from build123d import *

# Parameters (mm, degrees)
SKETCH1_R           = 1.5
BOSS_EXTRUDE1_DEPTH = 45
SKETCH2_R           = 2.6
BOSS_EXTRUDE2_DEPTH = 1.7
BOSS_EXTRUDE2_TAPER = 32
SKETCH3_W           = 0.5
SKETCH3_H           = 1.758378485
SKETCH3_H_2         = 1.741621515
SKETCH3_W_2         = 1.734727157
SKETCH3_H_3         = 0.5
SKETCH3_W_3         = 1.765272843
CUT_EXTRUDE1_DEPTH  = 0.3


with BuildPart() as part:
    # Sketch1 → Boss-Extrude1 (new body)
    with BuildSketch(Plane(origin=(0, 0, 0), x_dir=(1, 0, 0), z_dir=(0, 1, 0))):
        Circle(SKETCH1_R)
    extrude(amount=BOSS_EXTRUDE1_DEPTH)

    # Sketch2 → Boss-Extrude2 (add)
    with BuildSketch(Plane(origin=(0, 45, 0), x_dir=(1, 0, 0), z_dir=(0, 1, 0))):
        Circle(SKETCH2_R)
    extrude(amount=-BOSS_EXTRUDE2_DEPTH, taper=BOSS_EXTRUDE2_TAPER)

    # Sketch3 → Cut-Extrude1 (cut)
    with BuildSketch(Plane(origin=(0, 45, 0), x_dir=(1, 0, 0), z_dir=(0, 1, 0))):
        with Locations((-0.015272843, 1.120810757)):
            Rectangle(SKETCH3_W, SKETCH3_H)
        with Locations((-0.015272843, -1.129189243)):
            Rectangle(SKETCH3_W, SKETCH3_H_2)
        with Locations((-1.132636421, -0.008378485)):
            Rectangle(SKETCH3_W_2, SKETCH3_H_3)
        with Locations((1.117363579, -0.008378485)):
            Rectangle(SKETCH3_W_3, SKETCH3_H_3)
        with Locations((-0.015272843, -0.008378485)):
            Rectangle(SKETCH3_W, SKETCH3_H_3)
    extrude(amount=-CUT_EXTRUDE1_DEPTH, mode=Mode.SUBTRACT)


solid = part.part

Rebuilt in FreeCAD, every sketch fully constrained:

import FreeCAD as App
import Part
import Sketcher
Q = App.Units.Quantity

doc = App.newDocument("Part")
params = doc.addObject("Spreadsheet::Sheet", "Params")
for row, (alias, value) in enumerate([
    ("sketch1_diameter", "3 mm"),
    ("pad1_length", "45 mm"),
    ("sketch2_diameter", "5.2 mm"),
    ("pad2_length", "1.7 mm"),
    ("pad2_taper", "-32 deg"),
    ("sketch3_width", "0.5 mm"),
    ("pocket1_length", "0.3 mm"),
], start=1):
    params.set(f"A{row}", alias)
    params.set(f"B{row}", "=" + value)
    params.setAlias(f"B{row}", alias)

body = doc.addObject("PartDesign::Body", "Body")

# Sketch on XZ plane
sketch1 = body.newObject("Sketcher::SketchObject", "Sketch")
sketch1.AttachmentSupport = (doc.getObject("XZ_Plane"), [""])
sketch1.MapMode = "FlatFace"
sketch1.addGeometry(Part.Circle(App.Vector(0, 0, 0), App.Vector(0, 0, 1), 1.5), False)
sketch1.addConstraint(Sketcher.Constraint("Coincident", 0, 3, -1, 1))
sketch1.addConstraint(Sketcher.Constraint("Diameter", 0, Q("3 mm")))
sketch1.setExpression("Constraints[1]", "Params.sketch1_diameter")
pad1 = body.newObject("PartDesign::Pad", "Pad")
pad1.Profile = sketch1
pad1.setExpression("Length", "Params.pad1_length")
pad1.Reversed = True

# Sketch on XZ plane
sketch2 = body.newObject("Sketcher::SketchObject", "Sketch001")
sketch2.AttachmentSupport = (doc.getObject("XZ_Plane"), [""])
sketch2.MapMode = "FlatFace"
sketch2.AttachmentOffset = App.Placement(App.Vector(0, 0, -45), App.Rotation())
sketch2.addGeometry(Part.Circle(App.Vector(0, 0, 0), App.Vector(0, 0, 1), 2.6), False)
sketch2.addConstraint(Sketcher.Constraint("Coincident", 0, 3, -1, 1))
sketch2.addConstraint(Sketcher.Constraint("Diameter", 0, Q("5.2 mm")))
sketch2.setExpression("Constraints[1]", "Params.sketch2_diameter")
pad2 = body.newObject("PartDesign::Pad", "Pad001")
pad2.Profile = sketch2
pad2.setExpression("Length", "Params.pad2_length")
pad2.setExpression("TaperAngle", "Params.pad2_taper")

# Sketch on XZ plane
sketch3 = body.newObject("Sketcher::SketchObject", "Sketch002")
sketch3.AttachmentSupport = (doc.getObject("XZ_Plane"), [""])
sketch3.MapMode = "FlatFace"
sketch3.AttachmentOffset = App.Placement(App.Vector(0, 0, -45), App.Rotation())
sketch3.addGeometry(Part.LineSegment(App.Vector(-0.3, -2, 0), App.Vector(-0.3, -0.2, 0)), False)
sketch3.addGeometry(Part.LineSegment(App.Vector(-0.3, -0.2, 0), App.Vector(-2, -0.2, 0)), False)
sketch3.addGeometry(Part.LineSegment(App.Vector(-2, -0.2, 0), App.Vector(-2, 0.3, 0)), False)
sketch3.addGeometry(Part.LineSegment(App.Vector(-2, 0.3, 0), App.Vector(-0.3, 0.3, 0)), False)
sketch3.addGeometry(Part.LineSegment(App.Vector(-0.3, 0.3, 0), App.Vector(-0.3, 2, 0)), False)
sketch3.addGeometry(Part.LineSegment(App.Vector(-0.3, 2, 0), App.Vector(0.2, 2, 0)), False)
sketch3.addGeometry(Part.LineSegment(App.Vector(0.2, 2, 0), App.Vector(0.2, 0.3, 0)), False)
sketch3.addGeometry(Part.LineSegment(App.Vector(0.2, 0.3, 0), App.Vector(2, 0.3, 0)), False)
sketch3.addGeometry(Part.LineSegment(App.Vector(2, 0.3, 0), App.Vector(2, -0.2, 0)), False)
sketch3.addGeometry(Part.LineSegment(App.Vector(2, -0.2, 0), App.Vector(0.2, -0.2, 0)), False)
sketch3.addGeometry(Part.LineSegment(App.Vector(0.2, -0.2, 0), App.Vector(0.2, -2, 0)), False)
sketch3.addGeometry(Part.LineSegment(App.Vector(0.2, -2, 0), App.Vector(-0.3, -2, 0)), False)
sketch3.addConstraint(Sketcher.Constraint("Coincident", 0, 2, 1, 1))
sketch3.addConstraint(Sketcher.Constraint("Coincident", 1, 2, 2, 1))
sketch3.addConstraint(Sketcher.Constraint("Coincident", 2, 2, 3, 1))
sketch3.addConstraint(Sketcher.Constraint("Coincident", 3, 2, 4, 1))
sketch3.addConstraint(Sketcher.Constraint("Coincident", 4, 2, 5, 1))
sketch3.addConstraint(Sketcher.Constraint("Coincident", 5, 2, 6, 1))
sketch3.addConstraint(Sketcher.Constraint("Coincident", 6, 2, 7, 1))
sketch3.addConstraint(Sketcher.Constraint("Coincident", 7, 2, 8, 1))
sketch3.addConstraint(Sketcher.Constraint("Coincident", 8, 2, 9, 1))
sketch3.addConstraint(Sketcher.Constraint("Coincident", 9, 2, 10, 1))
sketch3.addConstraint(Sketcher.Constraint("Coincident", 10, 2, 11, 1))
sketch3.addConstraint(Sketcher.Constraint("Coincident", 11, 2, 0, 1))
sketch3.addConstraint(Sketcher.Constraint("Vertical", 0))
sketch3.addConstraint(Sketcher.Constraint("Horizontal", 1))
sketch3.addConstraint(Sketcher.Constraint("Vertical", 2))
sketch3.addConstraint(Sketcher.Constraint("Horizontal", 3))
sketch3.addConstraint(Sketcher.Constraint("Vertical", 4))
sketch3.addConstraint(Sketcher.Constraint("Horizontal", 5))
sketch3.addConstraint(Sketcher.Constraint("Vertical", 6))
sketch3.addConstraint(Sketcher.Constraint("Horizontal", 7))
sketch3.addConstraint(Sketcher.Constraint("Vertical", 8))
sketch3.addConstraint(Sketcher.Constraint("Horizontal", 9))
sketch3.addConstraint(Sketcher.Constraint("Vertical", 10))
sketch3.addConstraint(Sketcher.Constraint("Horizontal", 11))
sketch3.addConstraint(Sketcher.Constraint("Symmetric", 2, 2, 7, 2, -2))
sketch3.addConstraint(Sketcher.Constraint("Symmetric", 5, 2, 10, 2, -1))
sketch3.addConstraint(Sketcher.Constraint("Horizontal", 1, 2, 8, 2))
sketch3.addConstraint(Sketcher.Constraint("Vertical", 0, 2, 3, 2))
sketch3.addConstraint(Sketcher.Constraint("Equal", 11, 2))
sketch3.addConstraint(Sketcher.Constraint("DistanceX", 5, 1, 5, 2, Q("0.5 mm")))
sketch3.addConstraint(Sketcher.Constraint("DistanceX", 1, 2, -1, 1, Q("2 mm")))
sketch3.addConstraint(Sketcher.Constraint("DistanceY", -1, 1, 4, 2, Q("2 mm")))
sketch3.addConstraint(Sketcher.Constraint("DistanceY", 0, 1, 0, 2, Q("1.758378 mm")))
sketch3.addConstraint(Sketcher.Constraint("DistanceX", 1, 2, 1, 1, Q("1.734727 mm")))
sketch3.setExpression("Constraints[29]", "Params.sketch3_width")
pocket1 = body.newObject("PartDesign::Pocket", "Pocket")
pocket1.Profile = sketch3
pocket1.setExpression("Length", "Params.pocket1_length")
pocket1.Reversed = True

doc.recompute()
